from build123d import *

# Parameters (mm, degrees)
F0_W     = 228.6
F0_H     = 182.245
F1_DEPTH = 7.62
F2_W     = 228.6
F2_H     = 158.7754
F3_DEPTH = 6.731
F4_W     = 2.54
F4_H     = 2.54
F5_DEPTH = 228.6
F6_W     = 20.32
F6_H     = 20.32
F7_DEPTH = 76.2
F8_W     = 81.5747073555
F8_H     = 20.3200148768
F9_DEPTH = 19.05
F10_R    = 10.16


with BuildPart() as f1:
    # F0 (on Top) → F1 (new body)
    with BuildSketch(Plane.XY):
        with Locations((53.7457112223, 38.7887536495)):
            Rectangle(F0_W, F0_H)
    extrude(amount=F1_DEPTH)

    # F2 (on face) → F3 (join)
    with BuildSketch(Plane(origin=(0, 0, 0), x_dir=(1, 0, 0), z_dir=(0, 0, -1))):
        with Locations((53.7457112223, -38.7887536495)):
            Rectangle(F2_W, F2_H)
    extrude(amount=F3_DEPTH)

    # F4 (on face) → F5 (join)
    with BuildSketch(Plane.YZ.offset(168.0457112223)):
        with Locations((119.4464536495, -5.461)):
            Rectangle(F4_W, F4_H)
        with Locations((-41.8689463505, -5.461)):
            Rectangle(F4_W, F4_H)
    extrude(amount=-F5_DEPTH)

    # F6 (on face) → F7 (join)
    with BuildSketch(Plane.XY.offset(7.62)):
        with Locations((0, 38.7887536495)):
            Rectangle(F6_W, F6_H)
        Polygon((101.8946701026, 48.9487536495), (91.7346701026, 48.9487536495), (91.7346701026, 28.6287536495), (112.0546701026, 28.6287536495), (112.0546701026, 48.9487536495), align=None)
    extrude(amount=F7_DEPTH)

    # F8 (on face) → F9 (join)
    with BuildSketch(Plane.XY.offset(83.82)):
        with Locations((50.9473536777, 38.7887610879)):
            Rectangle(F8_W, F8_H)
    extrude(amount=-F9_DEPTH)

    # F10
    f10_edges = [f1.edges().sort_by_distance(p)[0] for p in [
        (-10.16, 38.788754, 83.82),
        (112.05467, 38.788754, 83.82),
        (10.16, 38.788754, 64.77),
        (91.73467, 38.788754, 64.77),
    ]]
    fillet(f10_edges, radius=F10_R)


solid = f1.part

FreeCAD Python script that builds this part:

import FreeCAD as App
import Part
import Sketcher
from FreeCAD import Vector
Q = App.Units.Quantity


def edges_at(feature, points):
    """Names of the edges that pass closest to the given points."""
    edges = feature.Shape.Edges
    near = lambda p: min(range(len(edges)), key=lambda i: edges[i].distToShape(Part.Vertex(*p))[0])
    return sorted({f"Edge{near(p) + 1}" for p in points})

doc = App.newDocument("Part")
body = doc.addObject("PartDesign::Body", "Body")

sketch1 = body.newObject("Sketcher::SketchObject", "Sketch")
sketch1.AttachmentSupport = (doc.getObject("XY_Plane"), [""])
sketch1.MapMode = "FlatFace"
sketch1.addGeometry(Part.LineSegment(Vector(-61, 130, 0), Vector(-61, -52, 0)), False)
sketch1.addGeometry(Part.LineSegment(Vector(-61, -52, 0), Vector(168, -52, 0)), False)
sketch1.addGeometry(Part.LineSegment(Vector(168, -52, 0), Vector(168, 130, 0)), False)
sketch1.addGeometry(Part.LineSegment(Vector(168, 130, 0), Vector(-61, 130, 0)), False)
sketch1.addConstraint(Sketcher.Constraint("Coincident", 0, 2, 1, 1))
sketch1.addConstraint(Sketcher.Constraint("Coincident", 1, 2, 2, 1))
sketch1.addConstraint(Sketcher.Constraint("Coincident", 2, 2, 3, 1))
sketch1.addConstraint(Sketcher.Constraint("Coincident", 3, 2, 0, 1))
sketch1.addConstraint(Sketcher.Constraint("Vertical", 0))
sketch1.addConstraint(Sketcher.Constraint("Horizontal", 1))
sketch1.addConstraint(Sketcher.Constraint("Vertical", 2))
sketch1.addConstraint(Sketcher.Constraint("Horizontal", 3))
sketch1.addConstraint(Sketcher.Constraint("DistanceX", 1, 1, 1, 2, Q("9 in")))
sketch1.addConstraint(Sketcher.Constraint("DistanceY", 0, 2, 0, 1, Q("7.175 in")))
sketch1.addConstraint(Sketcher.Constraint("DistanceX", 0, 2, -1, 1, 60.554289))
sketch1.addConstraint(Sketcher.Constraint("DistanceY", 0, 2, -1, 1, 52.333746))
pad1 = body.newObject("PartDesign::Pad", "Pad")
pad1.Profile = sketch1
pad1.Length = Q("0.3 in")

sketch2 = body.newObject("Sketcher::SketchObject", "Sketch001")
sketch2.AttachmentSupport = (doc.getObject("XY_Plane"), [""])
sketch2.MapMode = "FlatFace"
sketch2.addGeometry(Part.LineSegment(Vector(-61, -41, 0), Vector(-61, 118, 0)), False)
sketch2.addGeometry(Part.LineSegment(Vector(-61, 118, 0), Vector(168, 118, 0)), False)
sketch2.addGeometry(Part.LineSegment(Vector(168, 118, 0), Vector(168, -41, 0)), False)
sketch2.addGeometry(Part.LineSegment(Vector(168, -41, 0), Vector(-61, -41, 0)), False)
sketch2.addConstraint(Sketcher.Constraint("Coincident", 0, 2, 1, 1))
sketch2.addConstraint(Sketcher.Constraint("Coincident", 1, 2, 2, 1))
sketch2.addConstraint(Sketcher.Constraint("Coincident", 2, 2, 3, 1))
sketch2.addConstraint(Sketcher.Constraint("Coincident", 3, 2, 0, 1))
sketch2.addConstraint(Sketcher.Constraint("Vertical", 0))
sketch2.addConstraint(Sketcher.Constraint("Horizontal", 1))
sketch2.addConstraint(Sketcher.Constraint("Vertical", 2))
sketch2.addConstraint(Sketcher.Constraint("Horizontal", 3))
sketch2.addConstraint(Sketcher.Constraint("DistanceX", 1, 1, 1, 2, Q("9 in")))
sketch2.addConstraint(Sketcher.Constraint("DistanceY", 0, 1, 0, 2, Q("6.251 in")))
sketch2.addConstraint(Sketcher.Constraint("DistanceX", 0, 2, -1, 1, 60.554289))
sketch2.addConstraint(Sketcher.Constraint("DistanceY", -1, 1, 0, 2, 118.176454))
pad2 = body.newObject("PartDesign::Pad", "Pad001")
pad2.Profile = sketch2
pad2.Length = Q("0.265 in")
pad2.Reversed = True

sketch3 = body.newObject("Sketcher::SketchObject", "Sketch002")
sketch3.AttachmentSupport = (doc.getObject("YZ_Plane"), [""])
sketch3.MapMode = "FlatFace"
sketch3.AttachmentOffset = App.Placement(Vector(0, 0, 168.045711), App.Rotation())
sketch3.addGeometry(Part.LineSegment(Vector(118.2, -4.2, 0), Vector(118.2, -6.7, 0)), False)
sketch3.addGeometry(Part.LineSegment(Vector(118.2, -6.7, 0), Vector(120.7, -6.7, 0)), False)
sketch3.addGeometry(Part.LineSegment(Vector(120.7, -6.7, 0), Vector(120.7, -4.2, 0)), False)
sketch3.addGeometry(Part.LineSegment(Vector(120.7, -4.2, 0), Vector(118.2, -4.2, 0)), False)
sketch3.addGeometry(Part.LineSegment(Vector(-43.1, -4.2, 0), Vector(-43.1, -6.7, 0)), False)
sketch3.addGeometry(Part.LineSegment(Vector(-43.1, -6.7, 0), Vector(-40.6, -6.7, 0)), False)
sketch3.addGeometry(Part.LineSegment(Vector(-40.6, -6.7, 0), Vector(-40.6, -4.2, 0)), False)
sketch3.addGeometry(Part.LineSegment(Vector(-40.6, -4.2, 0), Vector(-43.1, -4.2, 0)), False)
sketch3.addConstraint(Sketcher.Constraint("Coincident", 0, 2, 1, 1))
sketch3.addConstraint(Sketcher.Constraint("Coincident", 1, 2, 2, 1))
sketch3.addConstraint(Sketcher.Constraint("Coincident", 2, 2, 3, 1))
sketch3.addConstraint(Sketcher.Constraint("Coincident", 3, 2, 0, 1))
sketch3.addConstraint(Sketcher.Constraint("Coincident", 4, 2, 5, 1))
sketch3.addConstraint(Sketcher.Constraint("Coincident", 5, 2, 6, 1))
sketch3.addConstraint(Sketcher.Constraint("Coincident", 6, 2, 7, 1))
sketch3.addConstraint(Sketcher.Constraint("Coincident", 7, 2, 4, 1))
sketch3.addConstraint(Sketcher.Constraint("Vertical", 0))
sketch3.addConstraint(Sketcher.Constraint("Horizontal", 1))
sketch3.addConstraint(Sketcher.Constraint("Vertical", 2))
sketch3.addConstraint(Sketcher.Constraint("Horizontal", 3))
sketch3.addConstraint(Sketcher.Constraint("Vertical", 4))
sketch3.addConstraint(Sketcher.Constraint("Horizontal", 5))
sketch3.addConstraint(Sketcher.Constraint("Vertical", 6))
sketch3.addConstraint(Sketcher.Constraint("Horizontal", 7))
sketch3.addConstraint(Sketcher.Constraint("Horizontal", 1, 2, 4, 2))
sketch3.addConstraint(Sketcher.Constraint("Horizontal", 3, 2, 6, 2))
sketch3.addConstraint(Sketcher.Constraint("Equal", 3, 5))
sketch3.addConstraint(Sketcher.Constraint("Equal", 7, 0))
sketch3.addConstraint(Sketcher.Constraint("DistanceX", 1, 1, 1, 2, Q("0.1 in")))
sketch3.addConstraint(Sketcher.Constraint("DistanceY", 0, 2, -1, 1, Q("0.265 in")))
sketch3.addConstraint(Sketcher.Constraint("DistanceX", 4, 2, 0, 2, Q("6.351 in")))
sketch3.addConstraint(Sketcher.Constraint("DistanceX", -1, 1, 0, 2, 118.176454))
pad3 = body.newObject("PartDesign::Pad", "Pad002")
pad3.Profile = sketch3
pad3.Length = Q("9 in")
pad3.Reversed = True

sketch4 = body.newObject("Sketcher::SketchObject", "Sketch003")
sketch4.AttachmentSupport = (doc.getObject("XY_Plane"), [""])
sketch4.MapMode = "FlatFace"
sketch4.AttachmentOffset = App.Placement(Vector(0, 0, 0.3 * 25.4), App.Rotation())
sketch4.addGeometry(Part.LineSegment(Vector(-10, 49, 0), Vector(-10, 29, 0)), False)
sketch4.addGeometry(Part.LineSegment(Vector(-10, 29, 0), Vector(10, 29, 0)), False)
sketch4.addGeometry(Part.LineSegment(Vector(10, 29, 0), Vector(10, 49, 0)), False)
sketch4.addGeometry(Part.LineSegment(Vector(10, 49, 0), Vector(-10, 49, 0)), False)
sketch4.addGeometry(Part.LineSegment(Vector(92, 49, 0), Vector(92, 29, 0)), False)
sketch4.addGeometry(Part.LineSegment(Vector(92, 29, 0), Vector(112, 29, 0)), False)
sketch4.addGeometry(Part.LineSegment(Vector(112, 29, 0), Vector(112, 49, 0)), False)
sketch4.addGeometry(Part.LineSegment(Vector(112, 49, 0), Vector(92, 49, 0)), False)
sketch4.addConstraint(Sketcher.Constraint("Coincident", 0, 2, 1, 1))
sketch4.addConstraint(Sketcher.Constraint("Coincident", 1, 2, 2, 1))
sketch4.addConstraint(Sketcher.Constraint("Coincident", 2, 2, 3, 1))
sketch4.addConstraint(Sketcher.Constraint("Coincident", 3, 2, 0, 1))
sketch4.addConstraint(Sketcher.Constraint("Coincident", 4, 2, 5, 1))
sketch4.addConstraint(Sketcher.Constraint("Coincident", 5, 2, 6, 1))
sketch4.addConstraint(Sketcher.Constraint("Coincident", 6, 2, 7, 1))
sketch4.addConstraint(Sketcher.Constraint("Coincident", 7, 2, 4, 1))
sketch4.addConstraint(Sketcher.Constraint("Vertical", 0))
sketch4.addConstraint(Sketcher.Constraint("Horizontal", 1))
sketch4.addConstraint(Sketcher.Constraint("Vertical", 2))
sketch4.addConstraint(Sketcher.Constraint("Horizontal", 3))
sketch4.addConstraint(Sketcher.Constraint("Vertical", 4))
sketch4.addConstraint(Sketcher.Constraint("Horizontal", 5))
sketch4.addConstraint(Sketcher.Constraint("Vertical", 6))
sketch4.addConstraint(Sketcher.Constraint("Horizontal", 7))
sketch4.addConstraint(Sketcher.Constraint("Horizontal", 1, 2, 4, 2))
sketch4.addConstraint(Sketcher.Constraint("Horizontal", 3, 2, 6, 2))
sketch4.addConstraint(Sketcher.Constraint("Equal", 3, 5))
sketch4.addConstraint(Sketcher.Constraint("Equal", 7, 0))
sketch4.addConstraint(Sketcher.Constraint("DistanceX", 1, 1, 1, 2, Q("0.8 in")))
sketch4.addConstraint(Sketcher.Constraint("DistanceX", 0, 2, -1, 1, Q("0.4 in")))
sketch4.addConstraint(Sketcher.Constraint("DistanceX", -1, 1, 4, 2, 91.73467))
sketch4.addConstraint(Sketcher.Constraint("DistanceY", -1, 1, 0, 2, 28.628754))
pad4 = body.newObject("PartDesign::Pad", "Pad003")
pad4.Profile = sketch4
pad4.Length = Q("3 in")

sketch5 = body.newObject("Sketcher::SketchObject", "Sketch004")
sketch5.AttachmentSupport = (doc.getObject("XY_Plane"), [""])
sketch5.MapMode = "FlatFace"
sketch5.AttachmentOffset = App.Placement(Vector(0, 0, 3.3 * 25.4), App.Rotation())
sketch5.addGeometry(Part.LineSegment(Vector(10, 49, 0), Vector(10, 29, 0)), False)
sketch5.addGeometry(Part.LineSegment(Vector(10, 29, 0), Vector(92, 29, 0)), False)
sketch5.addGeometry(Part.LineSegment(Vector(92, 29, 0), Vector(92, 49, 0)), False)
sketch5.addGeometry(Part.LineSegment(Vector(92, 49, 0), Vector(10, 49, 0)), False)
sketch5.addConstraint(Sketcher.Constraint("Coincident", 0, 2, 1, 1))
sketch5.addConstraint(Sketcher.Constraint("Coincident", 1, 2, 2, 1))
sketch5.addConstraint(Sketcher.Constraint("Coincident", 2, 2, 3, 1))
sketch5.addConstraint(Sketcher.Constraint("Coincident", 3, 2, 0, 1))
sketch5.addConstraint(Sketcher.Constraint("Vertical", 0))
sketch5.addConstraint(Sketcher.Constraint("Horizontal", 1))
sketch5.addConstraint(Sketcher.Constraint("Vertical", 2))
sketch5.addConstraint(Sketcher.Constraint("Horizontal", 3))
sketch5.addConstraint(Sketcher.Constraint("DistanceX", -1, 1, 0, 2, Q("0.4 in")))
sketch5.addConstraint(Sketcher.Constraint("DistanceX", 1, 1, 1, 2, 81.574707))
sketch5.addConstraint(Sketcher.Constraint("DistanceY", 0, 2, 0, 1, 20.320015))
sketch5.addConstraint(Sketcher.Constraint("DistanceY", -1, 1, 2, 2, 48.948769))
pad5 = body.newObject("PartDesign::Pad", "Pad004")
pad5.Profile = sketch5
pad5.Length = Q("0.75 in")
pad5.Reversed = True
doc.recompute()

fillet = body.newObject("PartDesign::Fillet", "Fillet")
fillet.Base = (pad5, edges_at(pad5, [
    (-10.16, 38.789, 83.82),
    (112.055, 38.789, 83.82),
    (10.16, 38.789, 64.77),
    (91.735, 38.789, 64.77),
]))
fillet.Radius = Q("0.4 in")

doc.recompute()
